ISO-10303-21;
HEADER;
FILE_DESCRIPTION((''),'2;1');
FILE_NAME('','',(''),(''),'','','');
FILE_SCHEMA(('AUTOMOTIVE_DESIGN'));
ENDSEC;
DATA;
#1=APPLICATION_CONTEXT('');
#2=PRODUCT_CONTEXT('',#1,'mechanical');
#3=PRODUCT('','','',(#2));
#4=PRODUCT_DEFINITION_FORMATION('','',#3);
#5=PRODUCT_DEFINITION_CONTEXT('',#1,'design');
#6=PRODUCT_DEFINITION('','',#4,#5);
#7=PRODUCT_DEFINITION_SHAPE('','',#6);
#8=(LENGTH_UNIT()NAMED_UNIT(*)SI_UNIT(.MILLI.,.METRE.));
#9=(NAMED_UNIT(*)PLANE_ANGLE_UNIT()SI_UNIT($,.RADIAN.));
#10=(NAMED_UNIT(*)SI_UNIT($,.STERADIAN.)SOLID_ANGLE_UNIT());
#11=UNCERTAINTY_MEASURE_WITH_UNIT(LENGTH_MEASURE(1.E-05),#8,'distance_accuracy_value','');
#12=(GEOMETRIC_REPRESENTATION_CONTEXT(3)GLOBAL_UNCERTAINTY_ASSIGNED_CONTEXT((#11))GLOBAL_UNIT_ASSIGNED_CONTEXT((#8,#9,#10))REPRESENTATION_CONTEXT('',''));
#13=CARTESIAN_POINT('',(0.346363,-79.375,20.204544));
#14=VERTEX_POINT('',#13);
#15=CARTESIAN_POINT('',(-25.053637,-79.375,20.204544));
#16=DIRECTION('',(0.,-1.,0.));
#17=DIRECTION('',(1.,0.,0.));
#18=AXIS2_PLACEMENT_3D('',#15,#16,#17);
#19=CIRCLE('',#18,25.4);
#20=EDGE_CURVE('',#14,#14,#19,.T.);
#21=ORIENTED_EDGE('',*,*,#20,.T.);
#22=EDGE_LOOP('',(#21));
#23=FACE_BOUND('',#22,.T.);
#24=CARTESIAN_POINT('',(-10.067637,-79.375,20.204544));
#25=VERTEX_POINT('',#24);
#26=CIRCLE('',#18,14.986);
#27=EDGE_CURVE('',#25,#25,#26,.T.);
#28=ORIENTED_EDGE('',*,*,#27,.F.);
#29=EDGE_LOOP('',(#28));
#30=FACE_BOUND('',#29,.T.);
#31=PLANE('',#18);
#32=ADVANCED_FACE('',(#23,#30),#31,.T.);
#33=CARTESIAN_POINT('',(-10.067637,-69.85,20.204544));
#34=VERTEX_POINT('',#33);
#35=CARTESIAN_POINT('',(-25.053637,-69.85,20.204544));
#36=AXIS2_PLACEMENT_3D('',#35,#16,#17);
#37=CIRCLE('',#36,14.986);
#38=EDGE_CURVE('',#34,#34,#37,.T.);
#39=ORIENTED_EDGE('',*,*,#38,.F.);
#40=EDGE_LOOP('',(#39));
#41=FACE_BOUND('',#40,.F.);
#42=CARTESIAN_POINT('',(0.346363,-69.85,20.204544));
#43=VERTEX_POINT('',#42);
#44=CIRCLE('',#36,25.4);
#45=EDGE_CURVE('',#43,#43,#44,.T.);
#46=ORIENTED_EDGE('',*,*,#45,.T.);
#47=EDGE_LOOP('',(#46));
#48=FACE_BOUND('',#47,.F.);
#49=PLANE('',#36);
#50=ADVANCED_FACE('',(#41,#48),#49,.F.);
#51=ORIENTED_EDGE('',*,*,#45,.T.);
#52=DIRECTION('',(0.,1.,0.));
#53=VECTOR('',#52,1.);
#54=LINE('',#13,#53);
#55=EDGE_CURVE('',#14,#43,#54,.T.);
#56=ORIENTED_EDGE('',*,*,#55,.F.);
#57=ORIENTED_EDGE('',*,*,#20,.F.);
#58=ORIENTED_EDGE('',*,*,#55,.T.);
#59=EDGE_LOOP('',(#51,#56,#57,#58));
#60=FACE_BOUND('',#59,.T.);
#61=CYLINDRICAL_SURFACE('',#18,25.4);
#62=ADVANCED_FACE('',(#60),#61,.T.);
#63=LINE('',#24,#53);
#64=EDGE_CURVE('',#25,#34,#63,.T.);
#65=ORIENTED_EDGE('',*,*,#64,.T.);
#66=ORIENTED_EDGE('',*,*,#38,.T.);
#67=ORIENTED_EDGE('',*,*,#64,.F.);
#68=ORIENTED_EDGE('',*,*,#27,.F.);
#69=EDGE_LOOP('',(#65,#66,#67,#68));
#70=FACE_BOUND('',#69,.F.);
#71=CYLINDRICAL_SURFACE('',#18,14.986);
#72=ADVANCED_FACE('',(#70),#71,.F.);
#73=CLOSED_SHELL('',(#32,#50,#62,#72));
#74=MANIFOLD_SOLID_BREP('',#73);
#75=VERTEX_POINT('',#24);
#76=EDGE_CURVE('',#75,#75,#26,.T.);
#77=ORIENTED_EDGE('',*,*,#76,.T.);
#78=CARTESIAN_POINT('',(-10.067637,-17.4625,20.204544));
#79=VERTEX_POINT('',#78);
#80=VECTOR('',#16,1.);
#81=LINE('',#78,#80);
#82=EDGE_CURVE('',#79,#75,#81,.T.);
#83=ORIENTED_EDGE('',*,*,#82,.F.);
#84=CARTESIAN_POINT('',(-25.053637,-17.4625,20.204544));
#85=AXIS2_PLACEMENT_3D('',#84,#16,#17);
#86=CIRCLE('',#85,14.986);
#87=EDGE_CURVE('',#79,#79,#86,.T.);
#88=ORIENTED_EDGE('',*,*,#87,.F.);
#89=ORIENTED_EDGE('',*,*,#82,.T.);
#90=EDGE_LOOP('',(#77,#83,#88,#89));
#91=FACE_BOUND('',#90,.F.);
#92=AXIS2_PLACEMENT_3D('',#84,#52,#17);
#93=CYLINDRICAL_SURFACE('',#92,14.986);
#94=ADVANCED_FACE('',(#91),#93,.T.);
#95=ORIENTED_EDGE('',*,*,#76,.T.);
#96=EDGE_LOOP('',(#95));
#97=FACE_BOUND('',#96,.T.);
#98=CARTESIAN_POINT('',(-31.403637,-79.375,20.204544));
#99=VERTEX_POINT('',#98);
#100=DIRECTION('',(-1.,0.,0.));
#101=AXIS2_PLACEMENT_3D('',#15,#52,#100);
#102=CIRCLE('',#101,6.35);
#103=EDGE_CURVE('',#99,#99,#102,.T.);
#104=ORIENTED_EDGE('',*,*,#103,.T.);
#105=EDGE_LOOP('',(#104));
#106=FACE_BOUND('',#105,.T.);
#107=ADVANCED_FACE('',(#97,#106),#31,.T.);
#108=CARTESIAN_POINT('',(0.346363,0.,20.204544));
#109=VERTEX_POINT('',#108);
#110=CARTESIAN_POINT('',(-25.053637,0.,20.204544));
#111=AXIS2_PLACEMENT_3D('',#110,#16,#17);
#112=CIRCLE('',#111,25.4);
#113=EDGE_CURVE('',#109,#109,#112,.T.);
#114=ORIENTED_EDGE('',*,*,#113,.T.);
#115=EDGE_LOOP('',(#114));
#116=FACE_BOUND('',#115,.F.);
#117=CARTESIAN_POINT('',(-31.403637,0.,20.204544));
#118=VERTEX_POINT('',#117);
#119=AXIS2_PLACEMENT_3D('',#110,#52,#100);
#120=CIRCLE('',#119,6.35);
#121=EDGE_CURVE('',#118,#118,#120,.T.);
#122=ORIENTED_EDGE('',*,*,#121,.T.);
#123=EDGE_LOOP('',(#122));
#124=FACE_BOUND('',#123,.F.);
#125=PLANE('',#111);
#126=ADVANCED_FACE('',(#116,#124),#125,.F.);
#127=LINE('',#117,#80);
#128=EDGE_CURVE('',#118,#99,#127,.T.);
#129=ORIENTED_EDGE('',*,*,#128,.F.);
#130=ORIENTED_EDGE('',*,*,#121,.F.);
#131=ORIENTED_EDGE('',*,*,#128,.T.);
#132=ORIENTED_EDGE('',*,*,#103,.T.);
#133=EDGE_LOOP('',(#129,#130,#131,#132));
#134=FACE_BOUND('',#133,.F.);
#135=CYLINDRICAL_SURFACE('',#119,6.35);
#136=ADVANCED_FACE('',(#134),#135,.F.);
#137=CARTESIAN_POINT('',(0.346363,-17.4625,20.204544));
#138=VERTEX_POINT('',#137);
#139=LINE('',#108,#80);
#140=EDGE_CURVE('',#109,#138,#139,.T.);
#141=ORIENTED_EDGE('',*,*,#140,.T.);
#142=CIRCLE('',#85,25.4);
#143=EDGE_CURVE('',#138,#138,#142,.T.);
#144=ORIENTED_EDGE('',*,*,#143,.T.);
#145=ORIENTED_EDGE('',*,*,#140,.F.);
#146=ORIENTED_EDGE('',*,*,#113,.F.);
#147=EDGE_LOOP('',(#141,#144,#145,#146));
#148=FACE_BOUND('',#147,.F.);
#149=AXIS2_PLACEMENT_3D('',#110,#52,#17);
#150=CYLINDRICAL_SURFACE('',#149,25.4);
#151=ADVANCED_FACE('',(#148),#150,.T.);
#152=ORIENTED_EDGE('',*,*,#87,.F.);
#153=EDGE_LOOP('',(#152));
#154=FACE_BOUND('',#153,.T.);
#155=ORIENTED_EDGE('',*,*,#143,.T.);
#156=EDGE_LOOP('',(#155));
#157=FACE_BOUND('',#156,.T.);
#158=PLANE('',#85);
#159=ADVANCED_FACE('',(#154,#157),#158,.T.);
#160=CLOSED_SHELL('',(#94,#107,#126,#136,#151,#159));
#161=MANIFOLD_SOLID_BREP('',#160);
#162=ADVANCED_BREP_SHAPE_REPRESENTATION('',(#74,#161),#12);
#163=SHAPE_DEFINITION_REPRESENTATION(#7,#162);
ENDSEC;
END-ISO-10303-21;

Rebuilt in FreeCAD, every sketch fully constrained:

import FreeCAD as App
import Part
import Sketcher
from FreeCAD import Vector
Q = App.Units.Quantity

doc = App.newDocument("Part")
body = doc.addObject("PartDesign::Body", "Body")

# Sketch on XZ plane
sketch1 = doc.addObject("Sketcher::SketchObject", "Sketch")
body.addObject(sketch1)
sketch1.AttachmentSupport = (doc.XZ_Plane, [""])
sketch1.MapMode = "FlatFace"
sketch1.addGeometry(Part.Circle(Vector(-25.053637, 20.204544, 0), Vector(0, 0, 1), 25.4), False)
sketch1.addConstraint(Sketcher.Constraint("Diameter", 0, Q("2 in")))
sketch1.addConstraint(Sketcher.Constraint("DistanceX", 0, 3, -1, 1, 25.053637))
sketch1.addConstraint(Sketcher.Constraint("DistanceY", -1, 1, 0, 3, 20.204544))
pad1 = doc.addObject("PartDesign::Pad", "Pad")
body.addObject(pad1)
pad1.Profile = sketch1
pad1.Length = Q("0.6875 in")

# Sketch on XZ plane
sketch2 = doc.addObject("Sketcher::SketchObject", "Sketch001")
body.addObject(sketch2)
sketch2.AttachmentSupport = (doc.XZ_Plane, [""])
sketch2.MapMode = "FlatFace"
sketch2.AttachmentOffset = App.Placement(Vector(0, 0, 0.6875 * 25.4), App.Rotation())
sketch2.addGeometry(Part.Circle(Vector(-25.053637, 20.204544, 0), Vector(0, 0, 1), 14.986), False)
sketch2.addConstraint(Sketcher.Constraint("Diameter", 0, Q("1.18 in")))
sketch2.addConstraint(Sketcher.Constraint("DistanceX", 0, 3, -1, 1, 25.053637))
sketch2.addConstraint(Sketcher.Constraint("DistanceY", -1, 1, 0, 3, 20.204544))
pad2 = doc.addObject("PartDesign::Pad", "Pad001")
body.addObject(pad2)
pad2.Profile = sketch2
pad2.Length = Q("2.4375 in")

# Sketch on XZ plane
sketch3 = doc.addObject("Sketcher::SketchObject", "Sketch002")
body.addObject(sketch3)
sketch3.AttachmentSupport = (doc.XZ_Plane, [""])
sketch3.MapMode = "FlatFace"
sketch3.addGeometry(Part.Circle(Vector(-25.053637, 20.204544, 0), Vector(0, 0, 1), 6.35), False)
sketch3.addConstraint(Sketcher.Constraint("Diameter", 0, Q("0.5 in")))
sketch3.addConstraint(Sketcher.Constraint("DistanceX", 0, 3, -1, 1, 25.053637))
sketch3.addConstraint(Sketcher.Constraint("DistanceY", -1, 1, 0, 3, 20.204544))
pocket1 = doc.addObject("PartDesign::Pocket", "Pocket")
body.addObject(pocket1)
pocket1.Profile = sketch3
pocket1.Type = "ThroughAll"
pocket1.Reversed = True
body2 = doc.addObject("PartDesign::Body", "Body001")

# Sketch on XZ plane
sketch4 = doc.addObject("Sketcher::SketchObject", "Sketch003")
body2.addObject(sketch4)
sketch4.AttachmentSupport = (doc.getObject("XZ_Plane001"), [""])
sketch4.MapMode = "FlatFace"
sketch4.AttachmentOffset = App.Placement(Vector(0, 0, 3.125 * 25.4), App.Rotation())
sketch4.addGeometry(Part.Circle(Vector(-25.053637, 20.204544, 0), Vector(0, 0, 1), 25.4), False)
sketch4.addGeometry(Part.Circle(Vector(-25.053637, 20.204544, 0), Vector(0, 0, 1), 14.986), False)
sketch4.addConstraint(Sketcher.Constraint("Coincident", 1, 3, 0, 3))
sketch4.addConstraint(Sketcher.Constraint("Diameter", 0, Q("2 in")))
sketch4.addConstraint(Sketcher.Constraint("Diameter", 1, Q("1.18 in")))
sketch4.addConstraint(Sketcher.Constraint("DistanceX", 0, 3, -1, 1, 25.053637))
sketch4.addConstraint(Sketcher.Constraint("DistanceY", -1, 1, 0, 3, 20.204544))
pad3 = doc.addObject("PartDesign::Pad", "Pad002")
body2.addObject(pad3)
pad3.Profile = sketch4
pad3.Length = Q("0.375 in")
pad3.Reversed = True

doc.recompute()
